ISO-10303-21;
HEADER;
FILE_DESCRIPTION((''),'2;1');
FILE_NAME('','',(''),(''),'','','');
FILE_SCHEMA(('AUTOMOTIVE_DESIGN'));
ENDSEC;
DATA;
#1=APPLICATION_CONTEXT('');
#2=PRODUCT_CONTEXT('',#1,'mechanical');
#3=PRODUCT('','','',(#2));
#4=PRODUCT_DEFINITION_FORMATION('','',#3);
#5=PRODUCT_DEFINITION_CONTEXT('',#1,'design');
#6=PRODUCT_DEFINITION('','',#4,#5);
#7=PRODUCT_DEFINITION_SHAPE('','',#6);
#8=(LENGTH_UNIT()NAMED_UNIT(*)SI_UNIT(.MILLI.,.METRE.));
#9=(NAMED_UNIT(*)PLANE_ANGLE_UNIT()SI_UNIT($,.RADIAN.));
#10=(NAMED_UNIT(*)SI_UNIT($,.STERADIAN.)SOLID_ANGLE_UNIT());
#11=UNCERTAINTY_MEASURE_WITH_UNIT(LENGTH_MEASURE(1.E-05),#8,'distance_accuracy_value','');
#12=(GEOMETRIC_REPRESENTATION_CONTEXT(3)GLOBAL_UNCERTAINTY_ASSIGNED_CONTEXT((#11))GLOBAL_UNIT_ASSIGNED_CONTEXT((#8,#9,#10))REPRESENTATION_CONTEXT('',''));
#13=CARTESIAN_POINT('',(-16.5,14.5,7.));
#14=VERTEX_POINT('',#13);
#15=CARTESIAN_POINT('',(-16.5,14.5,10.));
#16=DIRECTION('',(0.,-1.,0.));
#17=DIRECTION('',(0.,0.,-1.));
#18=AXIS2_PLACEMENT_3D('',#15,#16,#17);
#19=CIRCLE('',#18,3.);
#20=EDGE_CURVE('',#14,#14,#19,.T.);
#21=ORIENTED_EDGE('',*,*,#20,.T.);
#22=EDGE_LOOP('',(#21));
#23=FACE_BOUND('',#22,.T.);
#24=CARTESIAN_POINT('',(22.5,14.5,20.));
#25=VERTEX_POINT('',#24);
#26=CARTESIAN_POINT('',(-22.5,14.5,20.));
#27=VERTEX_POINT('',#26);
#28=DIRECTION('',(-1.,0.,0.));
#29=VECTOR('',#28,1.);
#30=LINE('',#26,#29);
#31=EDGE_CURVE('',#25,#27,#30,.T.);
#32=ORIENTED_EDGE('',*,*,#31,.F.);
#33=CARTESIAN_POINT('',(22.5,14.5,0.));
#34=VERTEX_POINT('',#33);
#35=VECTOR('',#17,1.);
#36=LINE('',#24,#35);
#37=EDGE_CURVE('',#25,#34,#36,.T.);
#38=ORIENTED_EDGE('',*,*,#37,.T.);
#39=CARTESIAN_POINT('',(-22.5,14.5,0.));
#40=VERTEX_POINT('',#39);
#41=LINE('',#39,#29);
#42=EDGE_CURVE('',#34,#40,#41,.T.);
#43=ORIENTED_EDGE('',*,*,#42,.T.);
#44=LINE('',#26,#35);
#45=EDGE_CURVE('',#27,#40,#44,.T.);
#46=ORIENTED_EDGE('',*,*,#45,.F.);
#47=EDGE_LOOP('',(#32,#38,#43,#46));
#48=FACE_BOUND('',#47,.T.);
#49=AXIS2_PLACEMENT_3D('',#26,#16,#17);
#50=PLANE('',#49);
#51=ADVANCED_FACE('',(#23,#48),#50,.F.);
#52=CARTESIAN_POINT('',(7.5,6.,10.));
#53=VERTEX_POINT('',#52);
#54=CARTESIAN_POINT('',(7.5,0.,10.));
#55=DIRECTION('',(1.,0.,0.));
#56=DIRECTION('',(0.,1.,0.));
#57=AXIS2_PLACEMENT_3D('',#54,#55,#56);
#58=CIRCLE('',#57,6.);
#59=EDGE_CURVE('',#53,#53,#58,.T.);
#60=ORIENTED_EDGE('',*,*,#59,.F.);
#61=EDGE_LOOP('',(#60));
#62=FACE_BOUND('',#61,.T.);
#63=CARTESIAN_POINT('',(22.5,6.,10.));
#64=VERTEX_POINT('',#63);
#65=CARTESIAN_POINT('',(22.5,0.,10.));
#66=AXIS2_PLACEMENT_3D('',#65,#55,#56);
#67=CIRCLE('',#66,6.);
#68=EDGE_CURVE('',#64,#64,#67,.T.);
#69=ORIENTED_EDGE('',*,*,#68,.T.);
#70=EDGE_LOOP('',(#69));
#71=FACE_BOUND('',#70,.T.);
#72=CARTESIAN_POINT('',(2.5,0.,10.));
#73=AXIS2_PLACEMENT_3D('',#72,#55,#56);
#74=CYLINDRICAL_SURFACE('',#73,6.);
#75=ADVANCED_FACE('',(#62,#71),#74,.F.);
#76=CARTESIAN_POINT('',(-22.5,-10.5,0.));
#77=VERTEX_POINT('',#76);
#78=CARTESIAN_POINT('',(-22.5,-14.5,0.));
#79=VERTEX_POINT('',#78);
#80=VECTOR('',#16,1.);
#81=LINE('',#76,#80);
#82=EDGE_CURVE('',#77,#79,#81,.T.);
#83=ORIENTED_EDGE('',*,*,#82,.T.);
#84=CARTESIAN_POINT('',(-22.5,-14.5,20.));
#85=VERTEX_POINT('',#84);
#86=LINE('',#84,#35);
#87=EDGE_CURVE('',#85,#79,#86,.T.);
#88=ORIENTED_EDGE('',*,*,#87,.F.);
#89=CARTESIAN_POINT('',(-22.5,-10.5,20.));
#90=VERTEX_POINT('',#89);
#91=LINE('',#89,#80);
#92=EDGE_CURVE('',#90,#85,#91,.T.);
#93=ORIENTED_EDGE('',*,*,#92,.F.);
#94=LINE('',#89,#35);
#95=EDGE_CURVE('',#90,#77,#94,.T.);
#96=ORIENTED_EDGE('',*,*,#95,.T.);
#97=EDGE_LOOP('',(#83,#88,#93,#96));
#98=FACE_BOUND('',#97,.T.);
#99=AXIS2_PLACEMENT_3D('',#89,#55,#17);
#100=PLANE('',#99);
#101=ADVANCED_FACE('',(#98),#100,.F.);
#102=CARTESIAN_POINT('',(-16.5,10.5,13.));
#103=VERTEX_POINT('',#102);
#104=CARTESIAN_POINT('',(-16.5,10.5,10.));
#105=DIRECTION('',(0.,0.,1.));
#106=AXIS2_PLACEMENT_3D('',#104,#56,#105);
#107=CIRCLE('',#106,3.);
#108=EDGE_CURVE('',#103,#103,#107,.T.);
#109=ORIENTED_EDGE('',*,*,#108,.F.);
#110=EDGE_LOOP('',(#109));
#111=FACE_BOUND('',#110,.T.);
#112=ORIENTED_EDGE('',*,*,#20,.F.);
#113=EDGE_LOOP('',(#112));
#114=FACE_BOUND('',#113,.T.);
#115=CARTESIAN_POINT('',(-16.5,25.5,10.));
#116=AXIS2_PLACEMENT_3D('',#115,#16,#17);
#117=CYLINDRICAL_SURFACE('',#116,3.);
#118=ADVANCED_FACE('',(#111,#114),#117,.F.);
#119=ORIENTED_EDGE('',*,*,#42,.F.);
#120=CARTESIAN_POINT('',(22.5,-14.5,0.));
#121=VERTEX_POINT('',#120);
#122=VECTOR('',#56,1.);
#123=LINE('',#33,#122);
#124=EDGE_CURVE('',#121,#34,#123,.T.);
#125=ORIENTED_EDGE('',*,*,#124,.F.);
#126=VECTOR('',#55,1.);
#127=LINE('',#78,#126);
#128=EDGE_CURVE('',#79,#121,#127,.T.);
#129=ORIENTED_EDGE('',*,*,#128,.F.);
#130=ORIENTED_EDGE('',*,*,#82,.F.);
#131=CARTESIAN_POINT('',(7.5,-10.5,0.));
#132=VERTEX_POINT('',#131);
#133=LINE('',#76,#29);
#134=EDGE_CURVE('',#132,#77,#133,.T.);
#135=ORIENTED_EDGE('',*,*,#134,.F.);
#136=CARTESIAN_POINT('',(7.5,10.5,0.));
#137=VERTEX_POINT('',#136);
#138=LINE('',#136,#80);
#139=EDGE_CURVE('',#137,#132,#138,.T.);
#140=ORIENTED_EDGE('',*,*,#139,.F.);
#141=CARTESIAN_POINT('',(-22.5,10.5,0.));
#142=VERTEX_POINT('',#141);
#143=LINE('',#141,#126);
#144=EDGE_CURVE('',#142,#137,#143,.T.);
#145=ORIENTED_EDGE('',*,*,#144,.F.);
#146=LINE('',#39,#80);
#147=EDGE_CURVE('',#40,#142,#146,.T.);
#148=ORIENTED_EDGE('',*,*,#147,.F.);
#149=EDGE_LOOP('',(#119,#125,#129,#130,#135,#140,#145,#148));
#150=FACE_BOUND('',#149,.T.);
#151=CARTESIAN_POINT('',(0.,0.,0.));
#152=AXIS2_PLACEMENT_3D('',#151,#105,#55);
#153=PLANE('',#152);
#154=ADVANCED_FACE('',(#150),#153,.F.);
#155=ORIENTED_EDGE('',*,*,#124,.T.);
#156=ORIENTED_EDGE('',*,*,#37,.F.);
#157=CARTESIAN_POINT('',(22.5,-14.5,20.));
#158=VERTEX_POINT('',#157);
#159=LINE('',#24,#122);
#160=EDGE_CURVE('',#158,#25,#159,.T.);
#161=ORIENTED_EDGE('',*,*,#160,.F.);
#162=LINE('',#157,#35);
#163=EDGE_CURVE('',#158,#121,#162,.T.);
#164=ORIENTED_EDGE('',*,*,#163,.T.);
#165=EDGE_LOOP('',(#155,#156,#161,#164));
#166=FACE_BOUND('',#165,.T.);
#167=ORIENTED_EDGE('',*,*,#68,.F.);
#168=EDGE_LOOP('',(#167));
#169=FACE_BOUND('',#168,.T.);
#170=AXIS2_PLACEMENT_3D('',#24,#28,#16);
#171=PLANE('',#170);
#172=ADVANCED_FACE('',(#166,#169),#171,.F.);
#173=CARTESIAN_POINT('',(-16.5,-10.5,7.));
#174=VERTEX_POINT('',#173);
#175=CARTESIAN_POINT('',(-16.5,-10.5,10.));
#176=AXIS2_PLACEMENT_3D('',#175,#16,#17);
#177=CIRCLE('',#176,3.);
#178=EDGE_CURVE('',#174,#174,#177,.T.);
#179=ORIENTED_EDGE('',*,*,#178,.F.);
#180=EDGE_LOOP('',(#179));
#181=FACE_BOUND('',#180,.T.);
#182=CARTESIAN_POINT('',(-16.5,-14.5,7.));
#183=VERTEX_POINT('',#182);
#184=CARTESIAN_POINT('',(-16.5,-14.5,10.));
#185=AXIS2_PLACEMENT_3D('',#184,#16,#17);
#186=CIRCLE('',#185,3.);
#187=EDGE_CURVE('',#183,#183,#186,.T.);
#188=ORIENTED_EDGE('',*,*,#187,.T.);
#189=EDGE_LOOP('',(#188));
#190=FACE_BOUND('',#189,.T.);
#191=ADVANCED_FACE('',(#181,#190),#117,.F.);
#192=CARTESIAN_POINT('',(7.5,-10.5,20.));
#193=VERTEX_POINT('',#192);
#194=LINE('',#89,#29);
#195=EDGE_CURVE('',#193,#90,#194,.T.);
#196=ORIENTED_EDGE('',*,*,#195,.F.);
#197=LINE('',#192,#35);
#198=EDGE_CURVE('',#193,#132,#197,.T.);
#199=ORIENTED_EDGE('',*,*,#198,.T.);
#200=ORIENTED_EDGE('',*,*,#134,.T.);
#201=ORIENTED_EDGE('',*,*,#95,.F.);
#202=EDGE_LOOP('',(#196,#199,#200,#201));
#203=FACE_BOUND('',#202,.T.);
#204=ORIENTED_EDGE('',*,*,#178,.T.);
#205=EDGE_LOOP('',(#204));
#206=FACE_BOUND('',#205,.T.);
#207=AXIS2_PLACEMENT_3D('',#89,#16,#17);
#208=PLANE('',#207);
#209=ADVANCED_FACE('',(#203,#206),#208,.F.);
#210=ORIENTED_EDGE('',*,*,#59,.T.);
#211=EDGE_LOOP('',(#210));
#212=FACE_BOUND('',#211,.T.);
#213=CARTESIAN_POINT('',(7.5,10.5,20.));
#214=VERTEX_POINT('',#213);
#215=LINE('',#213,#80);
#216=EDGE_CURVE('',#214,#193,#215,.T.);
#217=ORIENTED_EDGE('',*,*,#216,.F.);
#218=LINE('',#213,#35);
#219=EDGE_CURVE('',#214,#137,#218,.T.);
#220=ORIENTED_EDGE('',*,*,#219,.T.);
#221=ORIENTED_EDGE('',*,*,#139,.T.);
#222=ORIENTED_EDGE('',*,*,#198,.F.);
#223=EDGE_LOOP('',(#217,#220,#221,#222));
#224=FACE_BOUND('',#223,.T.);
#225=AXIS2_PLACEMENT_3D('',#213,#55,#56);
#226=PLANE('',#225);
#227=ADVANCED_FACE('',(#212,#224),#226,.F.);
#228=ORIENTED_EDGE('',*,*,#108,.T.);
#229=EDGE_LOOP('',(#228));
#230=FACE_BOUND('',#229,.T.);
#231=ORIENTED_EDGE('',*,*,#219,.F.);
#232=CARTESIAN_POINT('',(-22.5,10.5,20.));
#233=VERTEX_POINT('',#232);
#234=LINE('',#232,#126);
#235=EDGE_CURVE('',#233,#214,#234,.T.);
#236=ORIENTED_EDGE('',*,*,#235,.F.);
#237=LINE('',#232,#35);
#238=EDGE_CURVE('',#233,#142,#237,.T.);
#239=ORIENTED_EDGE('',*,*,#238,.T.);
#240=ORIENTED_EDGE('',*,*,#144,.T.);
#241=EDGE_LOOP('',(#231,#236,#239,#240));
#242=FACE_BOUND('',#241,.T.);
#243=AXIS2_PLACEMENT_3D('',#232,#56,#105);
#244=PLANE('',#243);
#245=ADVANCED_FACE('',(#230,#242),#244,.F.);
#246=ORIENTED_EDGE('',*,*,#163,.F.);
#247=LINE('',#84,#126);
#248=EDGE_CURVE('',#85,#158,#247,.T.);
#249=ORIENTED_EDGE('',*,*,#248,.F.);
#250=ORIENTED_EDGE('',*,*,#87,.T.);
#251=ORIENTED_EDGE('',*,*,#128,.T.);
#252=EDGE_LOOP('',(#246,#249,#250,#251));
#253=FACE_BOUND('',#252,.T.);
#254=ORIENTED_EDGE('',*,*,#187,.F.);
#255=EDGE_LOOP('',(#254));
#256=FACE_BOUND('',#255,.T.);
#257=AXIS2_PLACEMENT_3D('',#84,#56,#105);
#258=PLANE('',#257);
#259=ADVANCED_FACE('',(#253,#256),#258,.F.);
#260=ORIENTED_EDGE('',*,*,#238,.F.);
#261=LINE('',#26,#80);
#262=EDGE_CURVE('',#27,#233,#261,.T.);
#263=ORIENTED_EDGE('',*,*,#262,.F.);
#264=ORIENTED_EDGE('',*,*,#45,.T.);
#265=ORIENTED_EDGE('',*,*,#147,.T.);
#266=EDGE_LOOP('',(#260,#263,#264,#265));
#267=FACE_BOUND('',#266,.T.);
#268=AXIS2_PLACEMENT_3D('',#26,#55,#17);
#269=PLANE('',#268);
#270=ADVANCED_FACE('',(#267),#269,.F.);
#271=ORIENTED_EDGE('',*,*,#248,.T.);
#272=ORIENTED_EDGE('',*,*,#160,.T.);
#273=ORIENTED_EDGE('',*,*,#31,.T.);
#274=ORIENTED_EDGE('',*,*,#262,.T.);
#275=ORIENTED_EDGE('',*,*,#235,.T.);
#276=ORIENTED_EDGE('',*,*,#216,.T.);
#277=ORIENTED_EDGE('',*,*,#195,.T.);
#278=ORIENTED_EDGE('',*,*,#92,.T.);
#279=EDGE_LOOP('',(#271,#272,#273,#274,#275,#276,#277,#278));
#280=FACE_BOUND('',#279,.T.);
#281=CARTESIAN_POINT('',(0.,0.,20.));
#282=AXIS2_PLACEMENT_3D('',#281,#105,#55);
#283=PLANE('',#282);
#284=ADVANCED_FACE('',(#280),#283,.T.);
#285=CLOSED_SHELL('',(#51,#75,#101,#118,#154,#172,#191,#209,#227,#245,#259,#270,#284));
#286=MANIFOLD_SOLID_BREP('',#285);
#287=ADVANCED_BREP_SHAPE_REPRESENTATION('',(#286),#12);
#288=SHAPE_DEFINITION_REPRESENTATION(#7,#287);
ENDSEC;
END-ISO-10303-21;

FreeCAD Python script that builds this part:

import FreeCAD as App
import Part
import Sketcher
from FreeCAD import Vector
Q = App.Units.Quantity


def add_polygon(sketch, points):
    """Adds a closed chain of lines whose ends are joined by coincident constraints."""
    first, n = sketch.GeometryCount, len(points)
    for a, b in zip(points, points[1:] + points[:1]):
        sketch.addGeometry(Part.LineSegment(App.Vector(*a, 0), App.Vector(*b, 0)), False)
    for i in range(n):
        sketch.addConstraint(Sketcher.Constraint("Coincident", first + i, 2, first + (i + 1) % n, 1))

doc = App.newDocument("Part")
body = doc.addObject("PartDesign::Body", "Body")

# Sketch on XY plane
sketch1 = doc.addObject("Sketcher::SketchObject", "Sketch")
body.addObject(sketch1)
sketch1.AttachmentSupport = (doc.XY_Plane, [""])
sketch1.MapMode = "FlatFace"
add_polygon(sketch1, [(22.5, 14.5), (-22.5, 14.5), (-22.5, 10.5), (7.5, 10.5), (7.5, -10.5), (-22.5, -10.5), (-22.5, -14.5), (22.5, -14.5)])  # lines 0-7
sketch1.addConstraint(Sketcher.Constraint("Horizontal", 0))
sketch1.addConstraint(Sketcher.Constraint("Vertical", 1))
sketch1.addConstraint(Sketcher.Constraint("Horizontal", 2))
sketch1.addConstraint(Sketcher.Constraint("Vertical", 3))
sketch1.addConstraint(Sketcher.Constraint("Horizontal", 4))
sketch1.addConstraint(Sketcher.Constraint("Vertical", 5))
sketch1.addConstraint(Sketcher.Constraint("Horizontal", 6))
sketch1.addConstraint(Sketcher.Constraint("Vertical", 7))
sketch1.addConstraint(Sketcher.Constraint("Symmetric", 0, 2, 6, 2, -1, 1))
sketch1.addConstraint(Sketcher.Constraint("Symmetric", 1, 2, 4, 2, -1))
sketch1.addConstraint(Sketcher.Constraint("DistanceX", 0, 2, 0, 1, Q("45 mm")))
sketch1.addConstraint(Sketcher.Constraint("DistanceX", 2, 1, 2, 2, Q("30 mm")))
sketch1.addConstraint(Sketcher.Constraint("DistanceY", 1, 2, 1, 1, Q("4 mm")))
sketch1.addConstraint(Sketcher.Constraint("DistanceY", 3, 2, 3, 1, Q("21 mm")))
pad1 = doc.addObject("PartDesign::Pad", "Pad")
body.addObject(pad1)
pad1.Profile = sketch1
pad1.Length = 20

# Sketch on YZ plane
sketch2 = doc.addObject("Sketcher::SketchObject", "Sketch001")
body.addObject(sketch2)
sketch2.AttachmentSupport = (doc.YZ_Plane, [""])
sketch2.MapMode = "FlatFace"
sketch2.AttachmentOffset = App.Placement(Vector(0, 0, 22.5), App.Rotation())
sketch2.addGeometry(Part.Circle(Vector(0, 10, 0), Vector(0, 0, 1), 6), False)
sketch2.addConstraint(Sketcher.Constraint("PointOnObject", 0, 3, -2))
sketch2.addConstraint(Sketcher.Constraint("Diameter", 0, Q("12 mm")))
sketch2.addConstraint(Sketcher.Constraint("DistanceY", -1, 1, 0, 3, Q("10 mm")))
pocket1 = doc.addObject("PartDesign::Pocket", "Pocket")
body.addObject(pocket1)
pocket1.Profile = sketch2
pocket1.Length = 20

# Sketch on XZ plane
sketch3 = doc.addObject("Sketcher::SketchObject", "Sketch002")
body.addObject(sketch3)
sketch3.AttachmentSupport = (doc.XZ_Plane, [""])
sketch3.MapMode = "FlatFace"
sketch3.AttachmentOffset = App.Placement(Vector(0, 0, 14.5), App.Rotation())
sketch3.addGeometry(Part.Circle(Vector(-16.5, 10, 0), Vector(0, 0, 1), 3), False)
sketch3.addConstraint(Sketcher.Constraint("Diameter", 0, Q("6 mm")))
sketch3.addConstraint(Sketcher.Constraint("DistanceY", -1, 1, 0, 3, Q("10 mm")))
sketch3.addConstraint(Sketcher.Constraint("DistanceX", 0, 3, -1, 1, Q("16.5 mm")))
pocket2 = doc.addObject("PartDesign::Pocket", "Pocket001")
body.addObject(pocket2)
pocket2.Profile = sketch3
pocket2.Length = 40

doc.recompute()
